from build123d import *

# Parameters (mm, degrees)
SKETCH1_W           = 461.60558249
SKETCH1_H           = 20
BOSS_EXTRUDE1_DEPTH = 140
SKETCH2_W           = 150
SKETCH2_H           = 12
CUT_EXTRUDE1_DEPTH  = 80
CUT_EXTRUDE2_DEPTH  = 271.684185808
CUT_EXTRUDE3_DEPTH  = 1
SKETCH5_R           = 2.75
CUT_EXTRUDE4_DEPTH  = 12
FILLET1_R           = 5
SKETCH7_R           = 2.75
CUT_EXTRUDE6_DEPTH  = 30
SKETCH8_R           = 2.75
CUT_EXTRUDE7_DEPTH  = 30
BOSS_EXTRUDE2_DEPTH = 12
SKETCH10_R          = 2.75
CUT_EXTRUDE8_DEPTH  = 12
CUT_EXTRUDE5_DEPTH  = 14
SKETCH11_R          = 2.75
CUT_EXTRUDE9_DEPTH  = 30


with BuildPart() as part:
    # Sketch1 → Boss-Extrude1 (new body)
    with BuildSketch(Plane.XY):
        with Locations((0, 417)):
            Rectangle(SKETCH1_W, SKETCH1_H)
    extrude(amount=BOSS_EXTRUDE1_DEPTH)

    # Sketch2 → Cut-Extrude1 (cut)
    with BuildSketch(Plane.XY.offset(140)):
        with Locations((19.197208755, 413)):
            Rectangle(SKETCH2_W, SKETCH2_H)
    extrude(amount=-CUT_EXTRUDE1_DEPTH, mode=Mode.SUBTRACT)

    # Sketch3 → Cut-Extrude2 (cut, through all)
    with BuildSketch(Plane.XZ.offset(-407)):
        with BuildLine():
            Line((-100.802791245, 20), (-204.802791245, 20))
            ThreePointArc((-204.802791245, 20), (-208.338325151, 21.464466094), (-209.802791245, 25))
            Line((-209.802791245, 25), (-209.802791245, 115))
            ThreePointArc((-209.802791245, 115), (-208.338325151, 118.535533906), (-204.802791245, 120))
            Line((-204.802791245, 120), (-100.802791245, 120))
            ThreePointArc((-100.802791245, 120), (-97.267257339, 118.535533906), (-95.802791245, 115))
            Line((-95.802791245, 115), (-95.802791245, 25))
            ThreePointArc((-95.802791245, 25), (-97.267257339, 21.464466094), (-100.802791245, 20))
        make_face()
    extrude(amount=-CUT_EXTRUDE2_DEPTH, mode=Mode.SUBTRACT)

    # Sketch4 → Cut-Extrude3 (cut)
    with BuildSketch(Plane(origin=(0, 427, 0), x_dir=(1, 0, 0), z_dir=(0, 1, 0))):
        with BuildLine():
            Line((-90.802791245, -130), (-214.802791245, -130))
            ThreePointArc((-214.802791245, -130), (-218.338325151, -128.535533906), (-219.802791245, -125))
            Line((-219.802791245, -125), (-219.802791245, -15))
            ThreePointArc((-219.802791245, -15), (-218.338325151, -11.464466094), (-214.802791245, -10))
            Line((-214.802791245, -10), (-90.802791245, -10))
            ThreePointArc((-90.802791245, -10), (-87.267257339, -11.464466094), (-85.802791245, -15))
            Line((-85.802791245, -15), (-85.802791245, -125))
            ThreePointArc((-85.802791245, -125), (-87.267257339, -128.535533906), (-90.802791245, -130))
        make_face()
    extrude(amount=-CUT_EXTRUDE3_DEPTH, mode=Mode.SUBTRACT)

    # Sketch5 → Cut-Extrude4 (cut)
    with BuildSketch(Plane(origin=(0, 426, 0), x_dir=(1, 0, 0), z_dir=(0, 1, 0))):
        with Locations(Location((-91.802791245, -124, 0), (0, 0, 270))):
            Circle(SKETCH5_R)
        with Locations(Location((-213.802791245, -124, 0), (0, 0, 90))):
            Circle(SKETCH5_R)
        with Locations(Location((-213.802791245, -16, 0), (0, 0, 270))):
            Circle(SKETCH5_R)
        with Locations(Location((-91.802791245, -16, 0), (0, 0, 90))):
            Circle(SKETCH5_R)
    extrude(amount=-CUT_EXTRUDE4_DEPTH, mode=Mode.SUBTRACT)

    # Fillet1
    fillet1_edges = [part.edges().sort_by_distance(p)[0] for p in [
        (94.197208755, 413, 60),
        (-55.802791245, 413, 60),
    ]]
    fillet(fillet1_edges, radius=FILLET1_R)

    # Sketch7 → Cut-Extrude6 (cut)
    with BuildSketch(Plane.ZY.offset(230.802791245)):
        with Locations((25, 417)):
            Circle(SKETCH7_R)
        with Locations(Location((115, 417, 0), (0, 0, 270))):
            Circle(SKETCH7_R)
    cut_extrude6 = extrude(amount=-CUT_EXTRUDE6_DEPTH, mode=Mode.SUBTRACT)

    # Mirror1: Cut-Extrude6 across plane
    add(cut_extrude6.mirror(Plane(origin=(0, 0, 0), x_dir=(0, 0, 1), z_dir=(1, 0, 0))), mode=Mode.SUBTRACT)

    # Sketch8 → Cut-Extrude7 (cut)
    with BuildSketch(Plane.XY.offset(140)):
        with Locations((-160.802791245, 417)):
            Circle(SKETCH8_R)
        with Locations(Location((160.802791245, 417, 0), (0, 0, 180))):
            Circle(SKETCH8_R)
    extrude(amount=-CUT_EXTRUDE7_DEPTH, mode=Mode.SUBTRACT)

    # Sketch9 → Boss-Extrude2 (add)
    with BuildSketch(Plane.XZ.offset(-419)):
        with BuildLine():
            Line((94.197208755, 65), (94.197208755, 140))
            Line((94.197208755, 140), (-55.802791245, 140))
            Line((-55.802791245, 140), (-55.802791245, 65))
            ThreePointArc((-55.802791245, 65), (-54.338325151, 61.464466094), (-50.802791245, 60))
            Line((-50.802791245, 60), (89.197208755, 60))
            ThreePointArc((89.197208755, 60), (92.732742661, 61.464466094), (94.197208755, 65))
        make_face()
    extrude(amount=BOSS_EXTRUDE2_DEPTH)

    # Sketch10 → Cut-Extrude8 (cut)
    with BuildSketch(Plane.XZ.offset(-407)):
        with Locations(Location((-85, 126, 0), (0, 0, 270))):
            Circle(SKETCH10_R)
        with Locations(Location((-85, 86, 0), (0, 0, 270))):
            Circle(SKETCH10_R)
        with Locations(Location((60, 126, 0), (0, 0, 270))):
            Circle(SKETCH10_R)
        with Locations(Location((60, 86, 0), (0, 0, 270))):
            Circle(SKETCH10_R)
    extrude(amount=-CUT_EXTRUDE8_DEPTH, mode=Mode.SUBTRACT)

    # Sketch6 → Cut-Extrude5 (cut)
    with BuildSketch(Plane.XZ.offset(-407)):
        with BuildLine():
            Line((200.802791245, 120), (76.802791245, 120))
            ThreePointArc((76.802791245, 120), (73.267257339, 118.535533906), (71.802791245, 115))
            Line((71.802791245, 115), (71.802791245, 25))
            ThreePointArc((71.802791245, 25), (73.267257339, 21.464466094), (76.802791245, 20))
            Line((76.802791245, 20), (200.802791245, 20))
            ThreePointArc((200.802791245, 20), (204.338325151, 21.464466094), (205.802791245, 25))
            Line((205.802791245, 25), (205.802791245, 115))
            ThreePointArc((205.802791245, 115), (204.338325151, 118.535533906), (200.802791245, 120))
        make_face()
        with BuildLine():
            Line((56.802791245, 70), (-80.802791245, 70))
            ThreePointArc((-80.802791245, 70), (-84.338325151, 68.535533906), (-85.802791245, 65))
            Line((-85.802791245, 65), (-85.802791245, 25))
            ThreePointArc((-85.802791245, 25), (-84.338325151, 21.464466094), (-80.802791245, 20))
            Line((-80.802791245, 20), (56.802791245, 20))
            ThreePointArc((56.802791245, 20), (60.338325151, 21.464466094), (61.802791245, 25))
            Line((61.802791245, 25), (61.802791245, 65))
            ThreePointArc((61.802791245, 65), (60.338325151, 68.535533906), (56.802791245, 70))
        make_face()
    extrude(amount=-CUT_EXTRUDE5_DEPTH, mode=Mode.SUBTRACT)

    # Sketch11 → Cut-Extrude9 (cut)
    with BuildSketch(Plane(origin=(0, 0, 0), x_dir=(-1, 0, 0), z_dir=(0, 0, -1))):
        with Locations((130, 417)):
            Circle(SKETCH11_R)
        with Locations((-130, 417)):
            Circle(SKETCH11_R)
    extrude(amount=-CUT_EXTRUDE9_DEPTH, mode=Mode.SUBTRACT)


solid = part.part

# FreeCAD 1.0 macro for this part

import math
import FreeCAD as App
import Part
import Sketcher


def edges_at(feature, points):
    """Names of the edges that pass closest to the given points."""
    edges = feature.Shape.Edges
    near = lambda p: min(range(len(edges)), key=lambda i: edges[i].distToShape(Part.Vertex(*p))[0])
    return sorted({f"Edge{near(p) + 1}" for p in points})

doc = App.newDocument("Part")
body = doc.addObject("PartDesign::Body", "Body")

sketch1 = body.newObject("Sketcher::SketchObject", "Sketch")
sketch1.AttachmentSupport = (doc.getObject("XY_Plane"), [""])
sketch1.MapMode = "FlatFace"
sketch1.addGeometry([
    Part.LineSegment(App.Vector(-231, 427, 0), App.Vector(-231, 407, 0)),
    Part.LineSegment(App.Vector(-231, 407, 0), App.Vector(231, 407, 0)),
    Part.LineSegment(App.Vector(231, 407, 0), App.Vector(231, 427, 0)),
    Part.LineSegment(App.Vector(231, 427, 0), App.Vector(-231, 427, 0)),
], False)
sketch1.addConstraint([
    Sketcher.Constraint("Coincident", 0, 2, 1, 1),
    Sketcher.Constraint("Coincident", 1, 2, 2, 1),
    Sketcher.Constraint("Coincident", 2, 2, 3, 1),
    Sketcher.Constraint("Coincident", 3, 2, 0, 1),
    Sketcher.Constraint("Vertical", 0),
    Sketcher.Constraint("Horizontal", 1),
    Sketcher.Constraint("Vertical", 2),
    Sketcher.Constraint("Horizontal", 3),
    Sketcher.Constraint("DistanceY", 0, 2, 0, 1, 20.0),
    Sketcher.Constraint("DistanceY", -1, 1, 0, 2, 407.0),
    Sketcher.Constraint("DistanceX", 1, 1, 1, 2, 461.605582),
    Sketcher.Constraint("DistanceX", 0, 2, -1, 1, 230.802791),
])
pad1 = body.newObject("PartDesign::Pad", "Pad")
pad1.Profile = sketch1
pad1.Length = 140

sketch2 = body.newObject("Sketcher::SketchObject", "Sketch001")
sketch2.AttachmentSupport = (doc.getObject("XY_Plane"), [""])
sketch2.MapMode = "FlatFace"
sketch2.AttachmentOffset = App.Placement(App.Vector(0, 0, 140), App.Rotation())
sketch2.addGeometry([
    Part.LineSegment(App.Vector(-56, 419, 0), App.Vector(-56, 407, 0)),
    Part.LineSegment(App.Vector(-56, 407, 0), App.Vector(94, 407, 0)),
    Part.LineSegment(App.Vector(94, 407, 0), App.Vector(94, 419, 0)),
    Part.LineSegment(App.Vector(94, 419, 0), App.Vector(-56, 419, 0)),
], False)
sketch2.addConstraint([
    Sketcher.Constraint("Coincident", 0, 2, 1, 1),
    Sketcher.Constraint("Coincident", 1, 2, 2, 1),
    Sketcher.Constraint("Coincident", 2, 2, 3, 1),
    Sketcher.Constraint("Coincident", 3, 2, 0, 1),
    Sketcher.Constraint("Vertical", 0),
    Sketcher.Constraint("Horizontal", 1),
    Sketcher.Constraint("Vertical", 2),
    Sketcher.Constraint("Horizontal", 3),
    Sketcher.Constraint("DistanceX", 1, 1, 1, 2, 150.0),
    Sketcher.Constraint("DistanceY", 0, 2, 0, 1, 12.0),
    Sketcher.Constraint("DistanceY", -1, 1, 0, 2, 407.0),
    Sketcher.Constraint("DistanceX", 0, 2, -1, 1, 55.802791),
])
pocket1 = body.newObject("PartDesign::Pocket", "Pocket")
pocket1.Profile = sketch2
pocket1.Length = 80

sketch3 = body.newObject("Sketcher::SketchObject", "Sketch002")
sketch3.AttachmentSupport = (doc.getObject("XZ_Plane"), [""])
sketch3.MapMode = "FlatFace"
sketch3.AttachmentOffset = App.Placement(App.Vector(0, 0, -407), App.Rotation())
sketch3.addGeometry([
    Part.LineSegment(App.Vector(-205, 20, 0), App.Vector(-101, 20, 0)),
    Part.ArcOfCircle(Part.Circle(App.Vector(-101, 25, 0), App.Vector(0, 0, 1), 5), math.radians(-90), math.radians(0)),
    Part.LineSegment(App.Vector(-96, 25, 0), App.Vector(-96, 115, 0)),
    Part.ArcOfCircle(Part.Circle(App.Vector(-101, 115, 0), App.Vector(0, 0, 1), 5), math.radians(0), math.radians(90)),
    Part.LineSegment(App.Vector(-101, 120, 0), App.Vector(-205, 120, 0)),
    Part.ArcOfCircle(Part.Circle(App.Vector(-205, 115, 0), App.Vector(0, 0, 1), 5), math.radians(90), math.radians(180)),
    Part.LineSegment(App.Vector(-210, 115, 0), App.Vector(-210, 25, 0)),
    Part.ArcOfCircle(Part.Circle(App.Vector(-205, 25, 0), App.Vector(0, 0, 1), 5), math.radians(180), math.radians(270)),
], False)
sketch3.addConstraint([
    Sketcher.Constraint("Tangent", 0, 2, 1, 1),
    Sketcher.Constraint("Tangent", 1, 2, 2, 1),
    Sketcher.Constraint("Tangent", 2, 2, 3, 1),
    Sketcher.Constraint("Tangent", 3, 2, 4, 1),
    Sketcher.Constraint("Tangent", 4, 2, 5, 1),
    Sketcher.Constraint("Tangent", 5, 2, 6, 1),
    Sketcher.Constraint("Tangent", 6, 2, 7, 1),
    Sketcher.Constraint("Tangent", 7, 2, 0, 1),
    Sketcher.Constraint("Horizontal", 0),
    Sketcher.Constraint("Vertical", 2),
    Sketcher.Constraint("Horizontal", 4),
    Sketcher.Constraint("Vertical", 6),
    Sketcher.Constraint("Equal", 1, 3),
    Sketcher.Constraint("Equal", 3, 5),
    Sketcher.Constraint("Equal", 5, 7),
    Sketcher.Constraint("Radius", 1, 5.0),
    Sketcher.Constraint("DistanceX", 0, 1, 0, 2, 104.0),
    Sketcher.Constraint("DistanceY", 2, 1, 2, 2, 90.0),
    Sketcher.Constraint("DistanceY", -1, 1, 1, 3, 25.0),
    Sketcher.Constraint("DistanceX", 1, 3, -1, 1, 100.802791),
])
pocket2 = body.newObject("PartDesign::Pocket", "Pocket001")
pocket2.Profile = sketch3
pocket2.Type = "ThroughAll"

sketch4 = body.newObject("Sketcher::SketchObject", "Sketch003")
sketch4.AttachmentSupport = (doc.getObject("XZ_Plane"), [""])
sketch4.MapMode = "FlatFace"
sketch4.AttachmentOffset = App.Placement(App.Vector(0, 0, -427), App.Rotation())
sketch4.addGeometry([
    Part.LineSegment(App.Vector(-215, 130, 0), App.Vector(-91, 130, 0)),
    Part.ArcOfCircle(Part.Circle(App.Vector(-91, 125, 0), App.Vector(0, 0, 1), 5), math.radians(0), math.radians(90)),
    Part.LineSegment(App.Vector(-86, 125, 0), App.Vector(-86, 15, 0)),
    Part.ArcOfCircle(Part.Circle(App.Vector(-91, 15, 0), App.Vector(0, 0, 1), 5), math.radians(-90), math.radians(0)),
    Part.LineSegment(App.Vector(-91, 10, 0), App.Vector(-215, 10, 0)),
    Part.ArcOfCircle(Part.Circle(App.Vector(-215, 15, 0), App.Vector(0, 0, 1), 5), math.radians(180), math.radians(270)),
    Part.LineSegment(App.Vector(-220, 15, 0), App.Vector(-220, 125, 0)),
    Part.ArcOfCircle(Part.Circle(App.Vector(-215, 125, 0), App.Vector(0, 0, 1), 5), math.radians(90), math.radians(180)),
], False)
sketch4.addConstraint([
    Sketcher.Constraint("Tangent", 0, 2, 1, 2),
    Sketcher.Constraint("Tangent", 1, 1, 2, 1),
    Sketcher.Constraint("Tangent", 2, 2, 3, 2),
    Sketcher.Constraint("Tangent", 3, 1, 4, 1),
    Sketcher.Constraint("Tangent", 4, 2, 5, 2),
    Sketcher.Constraint("Tangent", 5, 1, 6, 1),
    Sketcher.Constraint("Tangent", 6, 2, 7, 2),
    Sketcher.Constraint("Tangent", 7, 1, 0, 1),
    Sketcher.Constraint("Horizontal", 0),
    Sketcher.Constraint("Vertical", 2),
    Sketcher.Constraint("Horizontal", 4),
    Sketcher.Constraint("Vertical", 6),
    Sketcher.Constraint("Equal", 1, 3),
    Sketcher.Constraint("Equal", 3, 5),
    Sketcher.Constraint("Equal", 5, 7),
    Sketcher.Constraint("Radius", 1, 5.0),
    Sketcher.Constraint("DistanceX", 0, 1, 0, 2, 124.0),
    Sketcher.Constraint("DistanceY", 2, 2, 2, 1, 110.0),
    Sketcher.Constraint("DistanceY", -1, 1, 1, 3, 125.0),
    Sketcher.Constraint("DistanceX", 1, 3, -1, 1, 90.802791),
])
pocket3 = body.newObject("PartDesign::Pocket", "Pocket002")
pocket3.Profile = sketch4
pocket3.Length = 1
pocket3.Reversed = True

sketch5 = body.newObject("Sketcher::SketchObject", "Sketch004")
sketch5.AttachmentSupport = (doc.getObject("XZ_Plane"), [""])
sketch5.MapMode = "FlatFace"
sketch5.AttachmentOffset = App.Placement(App.Vector(0, 0, -426), App.Rotation())
sketch5.addGeometry([
    Part.Circle(App.Vector(-91.8, 124, 0), App.Vector(0, 0, 1), 2.8),
    Part.Circle(App.Vector(-213.8, 124, 0), App.Vector(0, 0, 1), 2.8),
    Part.Circle(App.Vector(-213.8, 16, 0), App.Vector(0, 0, 1), 2.8),
    Part.Circle(App.Vector(-91.8, 16, 0), App.Vector(0, 0, 1), 2.8),
], False)
sketch5.addConstraint([
    Sketcher.Constraint("Equal", 0, 1),
    Sketcher.Constraint("Equal", 1, 2),
    Sketcher.Constraint("Equal", 2, 3),
    Sketcher.Constraint("Horizontal", 0, 3, 1, 3),
    Sketcher.Constraint("Horizontal", 2, 3, 3, 3),
    Sketcher.Constraint("Vertical", 1, 3, 2, 3),
    Sketcher.Constraint("Vertical", 0, 3, 3, 3),
    Sketcher.Constraint("Diameter", 0, 5.5),
    Sketcher.Constraint("DistanceY", -1, 1, 0, 3, 124.0),
    Sketcher.Constraint("DistanceY", -1, 1, 2, 3, 16.0),
    Sketcher.Constraint("DistanceX", 1, 3, 0, 3, 122.0),
    Sketcher.Constraint("DistanceX", 0, 3, -1, 1, 91.802791),
])
pocket4 = body.newObject("PartDesign::Pocket", "Pocket003")
pocket4.Profile = sketch5
pocket4.Length = 12
pocket4.Reversed = True
doc.recompute()

fillet = body.newObject("PartDesign::Fillet", "Fillet")
fillet.Base = (pocket4, edges_at(pocket4, [(94.197, 413, 60), (-55.803, 413, 60)]))
fillet.Radius = 5

sketch6 = body.newObject("Sketcher::SketchObject", "Sketch005")
sketch6.AttachmentSupport = (doc.getObject("YZ_Plane"), [""])
sketch6.MapMode = "FlatFace"
sketch6.AttachmentOffset = App.Placement(App.Vector(0, 0, -230.802791), App.Rotation())
sketch6.addGeometry([
    Part.Circle(App.Vector(417, 25, 0), App.Vector(0, 0, 1), 2.8),
    Part.Circle(App.Vector(417, 115, 0), App.Vector(0, 0, 1), 2.8),
], False)
sketch6.addConstraint([
    Sketcher.Constraint("Equal", 0, 1),
    Sketcher.Constraint("Vertical", 0, 3, 1, 3),
    Sketcher.Constraint("Diameter", 0, 5.5),
    Sketcher.Constraint("DistanceX", -1, 1, 0, 3, 417.0),
    Sketcher.Constraint("DistanceY", -1, 1, 0, 3, 25.0),
    Sketcher.Constraint("DistanceY", -1, 1, 1, 3, 115.0),
])
pocket5 = body.newObject("PartDesign::Pocket", "Pocket004")
pocket5.Profile = sketch6
pocket5.Length = 30
pocket5.Reversed = True
doc.recompute()

mirrored = body.newObject("PartDesign::Mirrored", "Mirrored")
mirrored.Originals = [pocket5]
mirrored.MirrorPlane = (doc.getObject("YZ_Plane"), [""])
body.Tip = mirrored

sketch7 = body.newObject("Sketcher::SketchObject", "Sketch006")
sketch7.AttachmentSupport = (doc.getObject("XY_Plane"), [""])
sketch7.MapMode = "FlatFace"
sketch7.AttachmentOffset = App.Placement(App.Vector(0, 0, 140), App.Rotation())
sketch7.addGeometry([
    Part.Circle(App.Vector(-160.8, 417, 0), App.Vector(0, 0, 1), 2.8),
    Part.Circle(App.Vector(160.8, 417, 0), App.Vector(0, 0, 1), 2.8),
], False)
sketch7.addConstraint([
    Sketcher.Constraint("Equal", 0, 1),
    Sketcher.Constraint("Symmetric", 0, 3, 1, 3, -2),
    Sketcher.Constraint("Diameter", 0, 5.5),
    Sketcher.Constraint("DistanceY", -1, 1, 0, 3, 417.0),
    Sketcher.Constraint("DistanceX", 0, 3, -1, 1, 160.802791),
])
pocket6 = body.newObject("PartDesign::Pocket", "Pocket005")
pocket6.Profile = sketch7
pocket6.Length = 30

sketch8 = body.newObject("Sketcher::SketchObject", "Sketch007")
sketch8.AttachmentSupport = (doc.getObject("XZ_Plane"), [""])
sketch8.MapMode = "FlatFace"
sketch8.AttachmentOffset = App.Placement(App.Vector(0, 0, -419), App.Rotation())
sketch8.addGeometry([
    Part.LineSegment(App.Vector(94, 65, 0), App.Vector(94, 140, 0)),
    Part.LineSegment(App.Vector(94, 140, 0), App.Vector(-56, 140, 0)),
    Part.LineSegment(App.Vector(-56, 140, 0), App.Vector(-56, 65, 0)),
    Part.ArcOfCircle(Part.Circle(App.Vector(-51, 65, 0), App.Vector(0, 0, 1), 5), math.radians(180), math.radians(270)),
    Part.LineSegment(App.Vector(-51, 60, 0), App.Vector(89, 60, 0)),
    Part.ArcOfCircle(Part.Circle(App.Vector(89, 65, 0), App.Vector(0, 0, 1), 5), math.radians(-90), math.radians(0)),
], False)
sketch8.addConstraint([
    Sketcher.Constraint("Coincident", 0, 2, 1, 1),
    Sketcher.Constraint("Coincident", 1, 2, 2, 1),
    Sketcher.Constraint("Tangent", 2, 2, 3, 1),
    Sketcher.Constraint("Tangent", 3, 2, 4, 1),
    Sketcher.Constraint("Tangent", 4, 2, 5, 1),
    Sketcher.Constraint("Tangent", 5, 2, 0, 1),
    Sketcher.Constraint("Vertical", 0),
    Sketcher.Constraint("Horizontal", 1),
    Sketcher.Constraint("Vertical", 2),
    Sketcher.Constraint("Horizontal", 4),
    Sketcher.Constraint("Equal", 3, 5),
    Sketcher.Constraint("Radius", 3, 5.0),
    Sketcher.Constraint("DistanceX", 1, 2, 1, 1, 150.0),
    Sketcher.Constraint("DistanceY", 0, 1, 0, 2, 75.0),
    Sketcher.Constraint("DistanceY", -1, 1, 3, 3, 65.0),
    Sketcher.Constraint("DistanceX", 3, 3, -1, 1, 50.802791),
])
pad2 = body.newObject("PartDesign::Pad", "Pad001")
pad2.Profile = sketch8
pad2.Length = 12

sketch9 = body.newObject("Sketcher::SketchObject", "Sketch008")
sketch9.AttachmentSupport = (doc.getObject("XZ_Plane"), [""])
sketch9.MapMode = "FlatFace"
sketch9.AttachmentOffset = App.Placement(App.Vector(0, 0, -407), App.Rotation())
sketch9.addGeometry([
    Part.Circle(App.Vector(-85, 126, 0), App.Vector(0, 0, 1), 2.8),
    Part.Circle(App.Vector(-85, 86, 0), App.Vector(0, 0, 1), 2.8),
    Part.Circle(App.Vector(60, 126, 0), App.Vector(0, 0, 1), 2.8),
    Part.Circle(App.Vector(60, 86, 0), App.Vector(0, 0, 1), 2.8),
], False)
sketch9.addConstraint([
    Sketcher.Constraint("Equal", 0, 1),
    Sketcher.Constraint("Equal", 1, 2),
    Sketcher.Constraint("Equal", 2, 3),
    Sketcher.Constraint("Horizontal", 0, 3, 2, 3),
    Sketcher.Constraint("Horizontal", 1, 3, 3, 3),
    Sketcher.Constraint("Vertical", 0, 3, 1, 3),
    Sketcher.Constraint("Vertical", 2, 3, 3, 3),
    Sketcher.Constraint("Diameter", 0, 5.5),
    Sketcher.Constraint("DistanceX", 0, 3, -1, 1, 85.0),
    Sketcher.Constraint("DistanceY", -1, 1, 0, 3, 126.0),
    Sketcher.Constraint("DistanceY", -1, 1, 1, 3, 86.0),
    Sketcher.Constraint("DistanceX", -1, 1, 2, 3, 60.0),
])
pocket7 = body.newObject("PartDesign::Pocket", "Pocket006")
pocket7.Profile = sketch9
pocket7.Length = 12

sketch10 = body.newObject("Sketcher::SketchObject", "Sketch009")
sketch10.AttachmentSupport = (doc.getObject("XZ_Plane"), [""])
sketch10.MapMode = "FlatFace"
sketch10.AttachmentOffset = App.Placement(App.Vector(0, 0, -407), App.Rotation())
sketch10.addGeometry([
    Part.LineSegment(App.Vector(201, 120, 0), App.Vector(77, 120, 0)),
    Part.ArcOfCircle(Part.Circle(App.Vector(77, 115, 0), App.Vector(0, 0, 1), 5), math.radians(90), math.radians(180)),
    Part.LineSegment(App.Vector(72, 115, 0), App.Vector(72, 25, 0)),
    Part.ArcOfCircle(Part.Circle(App.Vector(77, 25, 0), App.Vector(0, 0, 1), 5), math.radians(180), math.radians(270)),
    Part.LineSegment(App.Vector(77, 20, 0), App.Vector(201, 20, 0)),
    Part.ArcOfCircle(Part.Circle(App.Vector(201, 25, 0), App.Vector(0, 0, 1), 5), math.radians(-90), math.radians(0)),
    Part.LineSegment(App.Vector(206, 25, 0), App.Vector(206, 115, 0)),
    Part.ArcOfCircle(Part.Circle(App.Vector(201, 115, 0), App.Vector(0, 0, 1), 5), math.radians(0), math.radians(90)),
    Part.LineSegment(App.Vector(57, 70, 0), App.Vector(-81, 70, 0)),
    Part.ArcOfCircle(Part.Circle(App.Vector(-81, 65, 0), App.Vector(0, 0, 1), 5), math.radians(90), math.radians(180)),
    Part.LineSegment(App.Vector(-86, 65, 0), App.Vector(-86, 25, 0)),
    Part.ArcOfCircle(Part.Circle(App.Vector(-81, 25, 0), App.Vector(0, 0, 1), 5), math.radians(180), math.radians(270)),
    Part.LineSegment(App.Vector(-81, 20, 0), App.Vector(57, 20, 0)),
    Part.ArcOfCircle(Part.Circle(App.Vector(57, 25, 0), App.Vector(0, 0, 1), 5), math.radians(-90), math.radians(0)),
    Part.LineSegment(App.Vector(62, 25, 0), App.Vector(62, 65, 0)),
    Part.ArcOfCircle(Part.Circle(App.Vector(57, 65, 0), App.Vector(0, 0, 1), 5), math.radians(0), math.radians(90)),
], False)
sketch10.addConstraint([
    Sketcher.Constraint("Tangent", 0, 2, 1, 1),
    Sketcher.Constraint("Tangent", 1, 2, 2, 1),
    Sketcher.Constraint("Tangent", 2, 2, 3, 1),
    Sketcher.Constraint("Tangent", 3, 2, 4, 1),
    Sketcher.Constraint("Tangent", 4, 2, 5, 1),
    Sketcher.Constraint("Tangent", 5, 2, 6, 1),
    Sketcher.Constraint("Tangent", 6, 2, 7, 1),
    Sketcher.Constraint("Tangent", 7, 2, 0, 1),
    Sketcher.Constraint("Tangent", 8, 2, 9, 1),
    Sketcher.Constraint("Tangent", 9, 2, 10, 1),
    Sketcher.Constraint("Tangent", 10, 2, 11, 1),
    Sketcher.Constraint("Tangent", 11, 2, 12, 1),
    Sketcher.Constraint("Tangent", 12, 2, 13, 1),
    Sketcher.Constraint("Tangent", 13, 2, 14, 1),
    Sketcher.Constraint("Tangent", 14, 2, 15, 1),
    Sketcher.Constraint("Tangent", 15, 2, 8, 1),
    Sketcher.Constraint("Horizontal", 0),
    Sketcher.Constraint("Vertical", 2),
    Sketcher.Constraint("Horizontal", 4),
    Sketcher.Constraint("Vertical", 6),
    Sketcher.Constraint("Horizontal", 8),
    Sketcher.Constraint("Vertical", 10),
    Sketcher.Constraint("Horizontal", 12),
    Sketcher.Constraint("Vertical", 14),
    Sketcher.Constraint("Equal", 1, 3),
    Sketcher.Constraint("Equal", 3, 5),
    Sketcher.Constraint("Equal", 5, 7),
    Sketcher.Constraint("Equal", 7, 9),
    Sketcher.Constraint("Equal", 9, 11),
    Sketcher.Constraint("Equal", 11, 13),
    Sketcher.Constraint("Equal", 13, 15),
    Sketcher.Constraint("Horizontal", 5, 3, 11, 3),
    Sketcher.Constraint("Radius", 1, 5.0),
    Sketcher.Constraint("DistanceX", 0, 2, 0, 1, 124.0),
    Sketcher.Constraint("DistanceY", 2, 2, 2, 1, 90.0),
    Sketcher.Constraint("DistanceY", 10, 2, 10, 1, 40.0),
    Sketcher.Constraint("DistanceY", -1, 1, 1, 3, 115.0),
    Sketcher.Constraint("DistanceX", 13, 3, 3, 3, 20.0),
    Sketcher.Constraint("DistanceX", 8, 2, 8, 1, 137.605582),
    Sketcher.Constraint("DistanceX", -1, 1, 1, 3, 76.802791),
])
pocket8 = body.newObject("PartDesign::Pocket", "Pocket007")
pocket8.Profile = sketch10
pocket8.Length = 14

sketch11 = body.newObject("Sketcher::SketchObject", "Sketch010")
sketch11.AttachmentSupport = (doc.getObject("XY_Plane"), [""])
sketch11.MapMode = "FlatFace"
sketch11.addGeometry([
    Part.Circle(App.Vector(-130, 417, 0), App.Vector(0, 0, 1), 2.8),
    Part.Circle(App.Vector(130, 417, 0), App.Vector(0, 0, 1), 2.8),
], False)
sketch11.addConstraint([
    Sketcher.Constraint("Equal", 0, 1),
    Sketcher.Constraint("Symmetric", 0, 3, 1, 3, -2),
    Sketcher.Constraint("Diameter", 0, 5.5),
    Sketcher.Constraint("DistanceX", 0, 3, -1, 1, 130.0),
    Sketcher.Constraint("DistanceY", -1, 1, 0, 3, 417.0),
])
pocket9 = body.newObject("PartDesign::Pocket", "Pocket008")
pocket9.Profile = sketch11
pocket9.Length = 30
pocket9.Reversed = True

doc.recompute()
